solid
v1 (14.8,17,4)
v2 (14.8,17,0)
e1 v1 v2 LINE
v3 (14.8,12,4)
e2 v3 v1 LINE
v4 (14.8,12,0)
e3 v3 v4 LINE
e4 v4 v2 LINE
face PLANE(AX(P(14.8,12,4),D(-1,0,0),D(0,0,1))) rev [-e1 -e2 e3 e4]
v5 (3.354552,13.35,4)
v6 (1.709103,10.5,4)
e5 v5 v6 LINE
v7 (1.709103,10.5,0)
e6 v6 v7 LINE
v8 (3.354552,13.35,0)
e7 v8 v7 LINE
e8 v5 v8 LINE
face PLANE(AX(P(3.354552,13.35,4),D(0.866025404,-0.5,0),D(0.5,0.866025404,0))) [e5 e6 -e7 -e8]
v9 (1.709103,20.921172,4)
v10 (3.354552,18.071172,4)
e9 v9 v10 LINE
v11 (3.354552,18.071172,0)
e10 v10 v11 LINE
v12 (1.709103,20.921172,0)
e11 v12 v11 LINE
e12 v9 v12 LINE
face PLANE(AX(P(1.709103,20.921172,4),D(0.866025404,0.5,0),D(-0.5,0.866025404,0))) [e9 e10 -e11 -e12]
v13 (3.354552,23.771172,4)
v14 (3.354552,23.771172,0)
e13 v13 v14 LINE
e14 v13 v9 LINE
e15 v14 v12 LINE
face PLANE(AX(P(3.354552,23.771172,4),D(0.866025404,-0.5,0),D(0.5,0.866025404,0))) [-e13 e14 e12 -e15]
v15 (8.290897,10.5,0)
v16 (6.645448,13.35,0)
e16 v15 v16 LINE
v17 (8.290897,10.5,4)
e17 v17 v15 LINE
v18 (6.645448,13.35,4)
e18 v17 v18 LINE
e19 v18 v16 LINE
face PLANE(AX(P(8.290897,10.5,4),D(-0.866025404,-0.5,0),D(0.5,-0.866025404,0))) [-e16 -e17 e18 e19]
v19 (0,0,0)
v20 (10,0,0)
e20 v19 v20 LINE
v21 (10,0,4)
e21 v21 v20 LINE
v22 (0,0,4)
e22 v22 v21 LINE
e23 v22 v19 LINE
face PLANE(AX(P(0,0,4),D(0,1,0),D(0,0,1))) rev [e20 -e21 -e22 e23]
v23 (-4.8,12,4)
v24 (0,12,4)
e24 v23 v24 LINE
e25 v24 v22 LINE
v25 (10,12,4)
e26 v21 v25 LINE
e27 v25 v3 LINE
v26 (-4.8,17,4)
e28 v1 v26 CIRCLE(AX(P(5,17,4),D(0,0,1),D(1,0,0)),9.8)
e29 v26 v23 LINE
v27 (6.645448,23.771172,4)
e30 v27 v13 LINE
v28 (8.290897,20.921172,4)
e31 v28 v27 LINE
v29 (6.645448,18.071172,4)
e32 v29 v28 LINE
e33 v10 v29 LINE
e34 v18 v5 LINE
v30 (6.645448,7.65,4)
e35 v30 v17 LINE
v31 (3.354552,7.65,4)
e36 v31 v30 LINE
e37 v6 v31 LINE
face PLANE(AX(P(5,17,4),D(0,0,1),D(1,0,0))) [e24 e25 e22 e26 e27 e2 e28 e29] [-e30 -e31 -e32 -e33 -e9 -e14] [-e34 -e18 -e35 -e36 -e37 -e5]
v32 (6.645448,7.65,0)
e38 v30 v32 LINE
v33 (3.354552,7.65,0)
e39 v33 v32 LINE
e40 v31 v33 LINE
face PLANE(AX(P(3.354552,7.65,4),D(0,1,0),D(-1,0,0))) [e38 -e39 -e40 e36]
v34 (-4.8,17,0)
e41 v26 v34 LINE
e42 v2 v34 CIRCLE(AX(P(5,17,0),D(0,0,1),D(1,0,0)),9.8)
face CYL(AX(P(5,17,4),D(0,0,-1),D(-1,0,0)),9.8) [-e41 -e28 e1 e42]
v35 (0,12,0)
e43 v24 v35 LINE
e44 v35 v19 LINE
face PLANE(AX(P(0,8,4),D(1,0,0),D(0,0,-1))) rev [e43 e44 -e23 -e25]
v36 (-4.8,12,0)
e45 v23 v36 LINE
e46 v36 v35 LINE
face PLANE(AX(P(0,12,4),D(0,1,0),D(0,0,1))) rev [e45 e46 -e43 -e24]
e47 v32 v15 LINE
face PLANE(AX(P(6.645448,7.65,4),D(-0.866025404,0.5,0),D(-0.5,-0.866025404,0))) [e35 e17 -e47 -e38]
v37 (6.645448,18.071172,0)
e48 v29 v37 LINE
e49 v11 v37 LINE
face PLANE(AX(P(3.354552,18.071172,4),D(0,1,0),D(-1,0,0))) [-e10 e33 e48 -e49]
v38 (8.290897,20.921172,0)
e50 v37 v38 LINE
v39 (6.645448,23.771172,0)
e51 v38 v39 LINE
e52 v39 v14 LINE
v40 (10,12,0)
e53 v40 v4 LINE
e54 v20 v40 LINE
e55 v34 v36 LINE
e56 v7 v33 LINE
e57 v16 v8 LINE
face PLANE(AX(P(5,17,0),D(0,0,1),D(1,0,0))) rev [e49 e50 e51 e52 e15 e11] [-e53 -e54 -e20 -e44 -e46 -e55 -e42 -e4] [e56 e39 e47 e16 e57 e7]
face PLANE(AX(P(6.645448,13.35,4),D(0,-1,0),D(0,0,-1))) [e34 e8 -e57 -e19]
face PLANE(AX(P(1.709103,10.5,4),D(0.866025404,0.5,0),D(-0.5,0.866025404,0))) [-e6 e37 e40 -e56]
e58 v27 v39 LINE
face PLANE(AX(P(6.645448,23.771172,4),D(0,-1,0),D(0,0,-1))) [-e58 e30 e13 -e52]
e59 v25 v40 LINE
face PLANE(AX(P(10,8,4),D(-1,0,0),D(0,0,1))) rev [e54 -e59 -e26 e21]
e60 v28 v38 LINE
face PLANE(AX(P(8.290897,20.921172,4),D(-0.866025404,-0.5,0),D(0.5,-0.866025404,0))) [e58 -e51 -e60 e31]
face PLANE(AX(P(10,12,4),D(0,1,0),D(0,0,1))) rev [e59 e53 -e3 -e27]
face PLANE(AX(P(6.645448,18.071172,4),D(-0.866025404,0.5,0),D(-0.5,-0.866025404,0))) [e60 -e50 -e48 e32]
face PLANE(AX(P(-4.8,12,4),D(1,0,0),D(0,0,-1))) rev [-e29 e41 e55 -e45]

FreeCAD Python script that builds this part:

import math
import FreeCAD as App
import Part
import Sketcher
Q = App.Units.Quantity

doc = App.newDocument("Part")
body = doc.addObject("PartDesign::Body", "Body")

sketch1 = doc.addObject("Sketcher::SketchObject", "Sketch")
body.addObject(sketch1)
sketch1.AttachmentSupport = (doc.XY_Plane, [""])
sketch1.MapMode = "FlatFace"
sketch1.addGeometry([
    Part.LineSegment(App.Vector(0, 0, 0), App.Vector(10, 0, 0)),
    Part.LineSegment(App.Vector(10, 0, 0), App.Vector(10, 4, 0)),
    Part.LineSegment(App.Vector(10, 4, 0), App.Vector(12.5, 4, 0)),
    Part.LineSegment(App.Vector(12.5, 4, 0), App.Vector(12.5, 8, 0)),
    Part.LineSegment(App.Vector(12.5, 8, 0), App.Vector(10, 8, 0)),
    Part.LineSegment(App.Vector(10, 8, 0), App.Vector(10, 12, 0)),
    Part.LineSegment(App.Vector(10, 12, 0), App.Vector(14.8, 12, 0)),
    Part.LineSegment(App.Vector(14.8, 12, 0), App.Vector(14.8, 17, 0)),
    Part.ArcOfCircle(Part.Circle(App.Vector(5, 17, 0), App.Vector(0, 0, 1), 9.8), math.radians(0), math.radians(180)),
    Part.LineSegment(App.Vector(-4.8, 17, 0), App.Vector(-4.8, 12, 0)),
    Part.LineSegment(App.Vector(-4.8, 12, 0), App.Vector(0, 12, 0)),
    Part.LineSegment(App.Vector(0, 12, 0), App.Vector(0, 8, 0)),
    Part.LineSegment(App.Vector(0, 8, 0), App.Vector(-2.5, 8, 0)),
    Part.LineSegment(App.Vector(-2.5, 8, 0), App.Vector(-2.5, 4, 0)),
    Part.LineSegment(App.Vector(-2.5, 4, 0), App.Vector(0, 4, 0)),
    Part.LineSegment(App.Vector(0, 4, 0), App.Vector(0, 0, 0)),
    Part.LineSegment(App.Vector(6.6, 13.3, 0), App.Vector(8.3, 10.5, 0)),
    Part.LineSegment(App.Vector(8.3, 10.5, 0), App.Vector(6.6, 7.7, 0)),
    Part.LineSegment(App.Vector(6.6, 7.7, 0), App.Vector(3.4, 7.7, 0)),
    Part.LineSegment(App.Vector(3.4, 7.7, 0), App.Vector(1.7, 10.5, 0)),
    Part.LineSegment(App.Vector(1.7, 10.5, 0), App.Vector(3.4, 13.3, 0)),
    Part.LineSegment(App.Vector(3.4, 13.3, 0), App.Vector(6.6, 13.3, 0)),
    Part.LineSegment(App.Vector(6.6, 18.1, 0), App.Vector(3.4, 18.1, 0)),
    Part.LineSegment(App.Vector(3.4, 18.1, 0), App.Vector(1.7, 20.9, 0)),
    Part.LineSegment(App.Vector(1.7, 20.9, 0), App.Vector(3.4, 23.8, 0)),
    Part.LineSegment(App.Vector(3.4, 23.8, 0), App.Vector(6.6, 23.8, 0)),
    Part.LineSegment(App.Vector(6.6, 23.8, 0), App.Vector(8.3, 20.9, 0)),
    Part.LineSegment(App.Vector(8.3, 20.9, 0), App.Vector(6.6, 18.1, 0)),
], False)
sketch1.addConstraint([
    Sketcher.Constraint("Coincident", 0, 2, 1, 1),
    Sketcher.Constraint("Coincident", 1, 2, 2, 1),
    Sketcher.Constraint("Coincident", 2, 2, 3, 1),
    Sketcher.Constraint("Coincident", 3, 2, 4, 1),
    Sketcher.Constraint("Coincident", 4, 2, 5, 1),
    Sketcher.Constraint("Coincident", 5, 2, 6, 1),
    Sketcher.Constraint("Coincident", 6, 2, 7, 1),
    Sketcher.Constraint("Tangent", 7, 2, 8, 1),
    Sketcher.Constraint("Tangent", 8, 2, 9, 1),
    Sketcher.Constraint("Coincident", 9, 2, 10, 1),
    Sketcher.Constraint("Coincident", 10, 2, 11, 1),
    Sketcher.Constraint("Coincident", 11, 2, 12, 1),
    Sketcher.Constraint("Coincident", 12, 2, 13, 1),
    Sketcher.Constraint("Coincident", 13, 2, 14, 1),
    Sketcher.Constraint("Coincident", 14, 2, 15, 1),
    Sketcher.Constraint("Coincident", 15, 2, 0, 1),
    Sketcher.Constraint("Coincident", 16, 2, 17, 1),
    Sketcher.Constraint("Coincident", 17, 2, 18, 1),
    Sketcher.Constraint("Coincident", 18, 2, 19, 1),
    Sketcher.Constraint("Coincident", 19, 2, 20, 1),
    Sketcher.Constraint("Coincident", 20, 2, 21, 1),
    Sketcher.Constraint("Coincident", 21, 2, 16, 1),
    Sketcher.Constraint("Coincident", 22, 2, 23, 1),
    Sketcher.Constraint("Coincident", 23, 2, 24, 1),
    Sketcher.Constraint("Coincident", 24, 2, 25, 1),
    Sketcher.Constraint("Coincident", 25, 2, 26, 1),
    Sketcher.Constraint("Coincident", 26, 2, 27, 1),
    Sketcher.Constraint("Coincident", 27, 2, 22, 1),
    Sketcher.Constraint("Horizontal", 0),
    Sketcher.Constraint("Vertical", 1),
    Sketcher.Constraint("Horizontal", 2),
    Sketcher.Constraint("Vertical", 3),
    Sketcher.Constraint("Horizontal", 4),
    Sketcher.Constraint("Vertical", 5),
    Sketcher.Constraint("Horizontal", 6),
    Sketcher.Constraint("Vertical", 7),
    Sketcher.Constraint("Vertical", 9),
    Sketcher.Constraint("Horizontal", 10),
    Sketcher.Constraint("Vertical", 11),
    Sketcher.Constraint("Horizontal", 12),
    Sketcher.Constraint("Vertical", 13),
    Sketcher.Constraint("Horizontal", 14),
    Sketcher.Constraint("Vertical", 15),
    Sketcher.Constraint("Horizontal", 18),
    Sketcher.Constraint("Horizontal", 21),
    Sketcher.Constraint("Horizontal", 22),
    Sketcher.Constraint("Horizontal", 25),
    Sketcher.Constraint("Coincident", 15, 2, -1, 1),
    Sketcher.Constraint("PointOnObject", 10, 2, -2),
    Sketcher.Constraint("Parallel", 16, 19),
    Sketcher.Constraint("Parallel", 17, 20),
    Sketcher.Constraint("Parallel", 19, 23),
    Sketcher.Constraint("Parallel", 20, 24),
    Sketcher.Constraint("Parallel", 23, 26),
    Sketcher.Constraint("Parallel", 24, 27),
    Sketcher.Constraint("Horizontal", 6, 2, 9, 2),
    Sketcher.Constraint("Horizontal", 4, 2, 11, 2),
    Sketcher.Constraint("Horizontal", 2, 2, 13, 2),
    Sketcher.Constraint("Horizontal", 16, 2, 19, 2),
    Sketcher.Constraint("Horizontal", 23, 2, 26, 2),
    Sketcher.Constraint("Vertical", 1, 2, 4, 2),
    Sketcher.Constraint("Vertical", 18, 2, 20, 2),
    Sketcher.Constraint("Vertical", 17, 2, 21, 2),
    Sketcher.Constraint("Vertical", 20, 2, 22, 2),
    Sketcher.Constraint("Vertical", 19, 2, 23, 2),
    Sketcher.Constraint("Vertical", 22, 2, 24, 2),
    Sketcher.Constraint("Vertical", 21, 2, 25, 2),
    Sketcher.Constraint("Equal", 6, 10),
    Sketcher.Constraint("Equal", 4, 12),
    Sketcher.Constraint("Equal", 1, 3),
    Sketcher.Constraint("Equal", 3, 5),
    Sketcher.Constraint("Radius", 8, Q("9.8 mm")),
    Sketcher.Constraint("DistanceX", 0, 1, 0, 2, Q("10 mm")),
    Sketcher.Constraint("DistanceY", 1, 1, 1, 2, Q("4 mm")),
    Sketcher.Constraint("DistanceY", 7, 1, 7, 2, Q("5 mm")),
    Sketcher.Constraint("Angle", 16, Q("-60 deg")),
    Sketcher.Constraint("DistanceX", 2, 1, 2, 2, Q("2.5 mm")),
    Sketcher.Constraint("DistanceY", -1, 1, 16, 2, Q("10.5 mm")),
    Sketcher.Constraint("DistanceY", 18, 2, 20, 2, Q("5.7 mm")),
    Sketcher.Constraint("DistanceX", 18, 2, 18, 1, Q("3.290897 mm")),
    Sketcher.Constraint("DistanceX", -1, 1, 17, 2, Q("6.645448 mm")),
    Sketcher.Constraint("DistanceY", -1, 1, 22, 2, Q("18.071172 mm")),
])
pad1 = doc.addObject("PartDesign::Pad", "Pad")
body.addObject(pad1)
pad1.Profile = sketch1
pad1.Length = 4

sketch2 = doc.addObject("Sketcher::SketchObject", "Sketch001")
body.addObject(sketch2)
sketch2.AttachmentSupport = (doc.XY_Plane, [""])
sketch2.MapMode = "FlatFace"
sketch2.AttachmentOffset = App.Placement(App.Vector(0, 0, 4), App.Rotation())
sketch2.addGeometry([
    Part.LineSegment(App.Vector(-2.5, 8, 0), App.Vector(-2.5, 4, 0)),
    Part.LineSegment(App.Vector(-2.5, 4, 0), App.Vector(0, 4, 0)),
    Part.LineSegment(App.Vector(0, 4, 0), App.Vector(0, 8, 0)),
    Part.LineSegment(App.Vector(0, 8, 0), App.Vector(-2.5, 8, 0)),
    Part.LineSegment(App.Vector(10, 8, 0), App.Vector(10, 4, 0)),
    Part.LineSegment(App.Vector(10, 4, 0), App.Vector(12.5, 4, 0)),
    Part.LineSegment(App.Vector(12.5, 4, 0), App.Vector(12.5, 8, 0)),
    Part.LineSegment(App.Vector(12.5, 8, 0), App.Vector(10, 8, 0)),
], False)
sketch2.addConstraint([
    Sketcher.Constraint("Coincident", 0, 2, 1, 1),
    Sketcher.Constraint("Coincident", 1, 2, 2, 1),
    Sketcher.Constraint("Coincident", 2, 2, 3, 1),
    Sketcher.Constraint("Coincident", 3, 2, 0, 1),
    Sketcher.Constraint("Coincident", 4, 2, 5, 1),
    Sketcher.Constraint("Coincident", 5, 2, 6, 1),
    Sketcher.Constraint("Coincident", 6, 2, 7, 1),
    Sketcher.Constraint("Coincident", 7, 2, 4, 1),
    Sketcher.Constraint("Vertical", 0),
    Sketcher.Constraint("Horizontal", 1),
    Sketcher.Constraint("Vertical", 2),
    Sketcher.Constraint("Horizontal", 3),
    Sketcher.Constraint("Vertical", 4),
    Sketcher.Constraint("Horizontal", 5),
    Sketcher.Constraint("Vertical", 6),
    Sketcher.Constraint("Horizontal", 7),
    Sketcher.Constraint("PointOnObject", 1, 2, -2),
    Sketcher.Constraint("Horizontal", 1, 2, 4, 2),
    Sketcher.Constraint("Horizontal", 3, 2, 6, 2),
    Sketcher.Constraint("Equal", 3, 5),
    Sketcher.Constraint("DistanceY", 0, 2, 0, 1, Q("4 mm")),
    Sketcher.Constraint("DistanceX", 1, 1, 1, 2, Q("2.5 mm")),
    Sketcher.Constraint("DistanceY", -1, 1, 0, 2, Q("4 mm")),
    Sketcher.Constraint("DistanceX", -1, 1, 4, 2, Q("10 mm")),
])
pocket1 = doc.addObject("PartDesign::Pocket", "Pocket")
body.addObject(pocket1)
pocket1.Profile = sketch2
pocket1.Length = 4

doc.recompute()
